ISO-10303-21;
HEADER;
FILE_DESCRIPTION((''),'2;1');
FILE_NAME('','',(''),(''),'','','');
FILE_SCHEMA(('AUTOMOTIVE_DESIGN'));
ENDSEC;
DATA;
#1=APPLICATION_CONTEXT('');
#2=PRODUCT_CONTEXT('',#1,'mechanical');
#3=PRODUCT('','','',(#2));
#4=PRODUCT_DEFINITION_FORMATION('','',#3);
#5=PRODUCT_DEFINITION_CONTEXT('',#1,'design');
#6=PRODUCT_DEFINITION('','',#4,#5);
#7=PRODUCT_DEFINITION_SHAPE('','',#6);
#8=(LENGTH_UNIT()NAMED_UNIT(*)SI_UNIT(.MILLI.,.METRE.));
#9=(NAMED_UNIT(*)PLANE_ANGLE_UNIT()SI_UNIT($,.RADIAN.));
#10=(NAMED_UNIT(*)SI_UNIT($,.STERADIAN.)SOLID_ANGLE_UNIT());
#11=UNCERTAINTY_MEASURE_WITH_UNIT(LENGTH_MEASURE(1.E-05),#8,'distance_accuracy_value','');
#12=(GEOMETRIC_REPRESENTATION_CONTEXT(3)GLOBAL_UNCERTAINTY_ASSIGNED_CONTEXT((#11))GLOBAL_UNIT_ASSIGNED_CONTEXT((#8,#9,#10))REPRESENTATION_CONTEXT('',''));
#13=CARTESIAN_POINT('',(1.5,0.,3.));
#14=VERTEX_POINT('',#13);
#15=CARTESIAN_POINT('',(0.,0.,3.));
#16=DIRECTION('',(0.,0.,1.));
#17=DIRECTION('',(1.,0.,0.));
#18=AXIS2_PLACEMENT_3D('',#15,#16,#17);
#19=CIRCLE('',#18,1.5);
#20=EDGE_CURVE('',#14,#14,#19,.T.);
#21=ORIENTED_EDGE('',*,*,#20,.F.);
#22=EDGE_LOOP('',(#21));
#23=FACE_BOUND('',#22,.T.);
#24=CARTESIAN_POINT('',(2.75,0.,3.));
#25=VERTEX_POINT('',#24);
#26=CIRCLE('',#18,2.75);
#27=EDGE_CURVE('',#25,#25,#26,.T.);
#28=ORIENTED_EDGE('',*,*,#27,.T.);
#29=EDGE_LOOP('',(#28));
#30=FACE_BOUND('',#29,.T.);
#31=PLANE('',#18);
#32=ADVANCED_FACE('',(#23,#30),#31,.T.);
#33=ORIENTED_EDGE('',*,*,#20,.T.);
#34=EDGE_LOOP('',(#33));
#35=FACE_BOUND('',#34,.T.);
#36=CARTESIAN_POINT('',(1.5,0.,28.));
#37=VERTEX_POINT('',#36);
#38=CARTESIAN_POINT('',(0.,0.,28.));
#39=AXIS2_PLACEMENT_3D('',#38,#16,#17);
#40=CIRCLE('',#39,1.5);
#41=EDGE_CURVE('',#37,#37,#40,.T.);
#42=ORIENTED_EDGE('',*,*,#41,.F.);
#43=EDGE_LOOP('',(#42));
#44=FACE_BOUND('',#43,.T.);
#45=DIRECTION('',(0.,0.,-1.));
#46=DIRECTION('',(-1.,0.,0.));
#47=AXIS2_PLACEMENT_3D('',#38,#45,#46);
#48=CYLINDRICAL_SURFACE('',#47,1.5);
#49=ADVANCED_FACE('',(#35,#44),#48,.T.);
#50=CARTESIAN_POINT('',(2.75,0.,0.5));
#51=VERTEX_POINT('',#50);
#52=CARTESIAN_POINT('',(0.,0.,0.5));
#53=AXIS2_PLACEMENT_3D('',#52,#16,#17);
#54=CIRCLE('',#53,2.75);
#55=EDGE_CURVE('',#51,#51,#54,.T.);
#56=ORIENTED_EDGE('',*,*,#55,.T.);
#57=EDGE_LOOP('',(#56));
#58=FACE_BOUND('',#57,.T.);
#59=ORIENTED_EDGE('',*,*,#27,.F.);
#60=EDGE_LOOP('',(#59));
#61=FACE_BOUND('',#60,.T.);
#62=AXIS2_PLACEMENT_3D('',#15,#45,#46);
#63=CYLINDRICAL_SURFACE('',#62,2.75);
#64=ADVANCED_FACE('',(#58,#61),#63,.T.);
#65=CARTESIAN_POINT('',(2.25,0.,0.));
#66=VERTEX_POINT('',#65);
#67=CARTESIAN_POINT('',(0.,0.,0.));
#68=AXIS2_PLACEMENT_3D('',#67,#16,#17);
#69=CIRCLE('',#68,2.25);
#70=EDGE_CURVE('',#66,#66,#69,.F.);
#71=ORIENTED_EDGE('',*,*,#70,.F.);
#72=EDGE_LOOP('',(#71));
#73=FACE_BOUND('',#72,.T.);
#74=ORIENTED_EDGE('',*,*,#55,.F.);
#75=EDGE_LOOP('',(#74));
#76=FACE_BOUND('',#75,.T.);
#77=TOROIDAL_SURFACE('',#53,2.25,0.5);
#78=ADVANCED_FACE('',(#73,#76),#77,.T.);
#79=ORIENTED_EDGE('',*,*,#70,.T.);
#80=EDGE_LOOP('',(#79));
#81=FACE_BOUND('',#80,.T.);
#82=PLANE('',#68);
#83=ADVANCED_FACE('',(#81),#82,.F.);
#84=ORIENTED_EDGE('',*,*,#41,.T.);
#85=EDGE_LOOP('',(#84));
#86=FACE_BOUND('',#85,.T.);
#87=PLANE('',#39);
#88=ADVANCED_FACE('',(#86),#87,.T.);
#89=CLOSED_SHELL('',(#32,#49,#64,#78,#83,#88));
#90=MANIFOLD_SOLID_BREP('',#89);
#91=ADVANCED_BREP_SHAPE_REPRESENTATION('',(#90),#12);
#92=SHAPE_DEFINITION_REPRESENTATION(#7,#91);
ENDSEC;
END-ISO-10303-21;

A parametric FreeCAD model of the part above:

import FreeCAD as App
import Part
import Sketcher

V = App.Vector
Q = App.Units.Quantity


def edges_at(feature, points):
    """Names of the edges that pass closest to the given points."""
    edges = feature.Shape.Edges
    near = lambda p: min(range(len(edges)), key=lambda i: edges[i].distToShape(Part.Vertex(*p))[0])
    return sorted({f"Edge{near(p) + 1}" for p in points})

doc = App.newDocument("Part")
body = doc.addObject("PartDesign::Body", "Body")

# Sketch on XY plane
sketch1 = doc.addObject("Sketcher::SketchObject", "Sketch")
body.addObject(sketch1)
sketch1.AttachmentSupport = (doc.XY_Plane, [""])
sketch1.MapMode = "FlatFace"
sketch1.addGeometry(Part.Circle(V(0, 0, 0), V(0, 0, 1), 2.8), False)
sketch1.addConstraint([
    Sketcher.Constraint("Coincident", 0, 3, -1, 1),
    Sketcher.Constraint("Diameter", 0, Q("5.5 mm")),
])
pad1 = doc.addObject("PartDesign::Pad", "Pad")
body.addObject(pad1)
pad1.Profile = sketch1
pad1.Length = 3

# Sketch on XY plane
sketch2 = doc.addObject("Sketcher::SketchObject", "Sketch001")
body.addObject(sketch2)
sketch2.AttachmentSupport = (doc.XY_Plane, [""])
sketch2.MapMode = "FlatFace"
sketch2.AttachmentOffset = App.Placement(V(0, 0, 3), App.Rotation())
sketch2.addGeometry(Part.Circle(V(0, 0, 0), V(0, 0, 1), 1.5), False)
sketch2.addConstraint([
    Sketcher.Constraint("Coincident", 0, 3, -1, 1),
    Sketcher.Constraint("Diameter", 0, Q("3 mm")),
])
pad2 = doc.addObject("PartDesign::Pad", "Pad001")
body.addObject(pad2)
pad2.Profile = sketch2
pad2.Length = 25
doc.recompute()

fillet = doc.addObject("PartDesign::Fillet", "Fillet")
body.addObject(fillet)
fillet.Base = (pad2, edges_at(pad2, [(-2.75, 0, 0)]))
fillet.Radius = 0.5

doc.recompute()
